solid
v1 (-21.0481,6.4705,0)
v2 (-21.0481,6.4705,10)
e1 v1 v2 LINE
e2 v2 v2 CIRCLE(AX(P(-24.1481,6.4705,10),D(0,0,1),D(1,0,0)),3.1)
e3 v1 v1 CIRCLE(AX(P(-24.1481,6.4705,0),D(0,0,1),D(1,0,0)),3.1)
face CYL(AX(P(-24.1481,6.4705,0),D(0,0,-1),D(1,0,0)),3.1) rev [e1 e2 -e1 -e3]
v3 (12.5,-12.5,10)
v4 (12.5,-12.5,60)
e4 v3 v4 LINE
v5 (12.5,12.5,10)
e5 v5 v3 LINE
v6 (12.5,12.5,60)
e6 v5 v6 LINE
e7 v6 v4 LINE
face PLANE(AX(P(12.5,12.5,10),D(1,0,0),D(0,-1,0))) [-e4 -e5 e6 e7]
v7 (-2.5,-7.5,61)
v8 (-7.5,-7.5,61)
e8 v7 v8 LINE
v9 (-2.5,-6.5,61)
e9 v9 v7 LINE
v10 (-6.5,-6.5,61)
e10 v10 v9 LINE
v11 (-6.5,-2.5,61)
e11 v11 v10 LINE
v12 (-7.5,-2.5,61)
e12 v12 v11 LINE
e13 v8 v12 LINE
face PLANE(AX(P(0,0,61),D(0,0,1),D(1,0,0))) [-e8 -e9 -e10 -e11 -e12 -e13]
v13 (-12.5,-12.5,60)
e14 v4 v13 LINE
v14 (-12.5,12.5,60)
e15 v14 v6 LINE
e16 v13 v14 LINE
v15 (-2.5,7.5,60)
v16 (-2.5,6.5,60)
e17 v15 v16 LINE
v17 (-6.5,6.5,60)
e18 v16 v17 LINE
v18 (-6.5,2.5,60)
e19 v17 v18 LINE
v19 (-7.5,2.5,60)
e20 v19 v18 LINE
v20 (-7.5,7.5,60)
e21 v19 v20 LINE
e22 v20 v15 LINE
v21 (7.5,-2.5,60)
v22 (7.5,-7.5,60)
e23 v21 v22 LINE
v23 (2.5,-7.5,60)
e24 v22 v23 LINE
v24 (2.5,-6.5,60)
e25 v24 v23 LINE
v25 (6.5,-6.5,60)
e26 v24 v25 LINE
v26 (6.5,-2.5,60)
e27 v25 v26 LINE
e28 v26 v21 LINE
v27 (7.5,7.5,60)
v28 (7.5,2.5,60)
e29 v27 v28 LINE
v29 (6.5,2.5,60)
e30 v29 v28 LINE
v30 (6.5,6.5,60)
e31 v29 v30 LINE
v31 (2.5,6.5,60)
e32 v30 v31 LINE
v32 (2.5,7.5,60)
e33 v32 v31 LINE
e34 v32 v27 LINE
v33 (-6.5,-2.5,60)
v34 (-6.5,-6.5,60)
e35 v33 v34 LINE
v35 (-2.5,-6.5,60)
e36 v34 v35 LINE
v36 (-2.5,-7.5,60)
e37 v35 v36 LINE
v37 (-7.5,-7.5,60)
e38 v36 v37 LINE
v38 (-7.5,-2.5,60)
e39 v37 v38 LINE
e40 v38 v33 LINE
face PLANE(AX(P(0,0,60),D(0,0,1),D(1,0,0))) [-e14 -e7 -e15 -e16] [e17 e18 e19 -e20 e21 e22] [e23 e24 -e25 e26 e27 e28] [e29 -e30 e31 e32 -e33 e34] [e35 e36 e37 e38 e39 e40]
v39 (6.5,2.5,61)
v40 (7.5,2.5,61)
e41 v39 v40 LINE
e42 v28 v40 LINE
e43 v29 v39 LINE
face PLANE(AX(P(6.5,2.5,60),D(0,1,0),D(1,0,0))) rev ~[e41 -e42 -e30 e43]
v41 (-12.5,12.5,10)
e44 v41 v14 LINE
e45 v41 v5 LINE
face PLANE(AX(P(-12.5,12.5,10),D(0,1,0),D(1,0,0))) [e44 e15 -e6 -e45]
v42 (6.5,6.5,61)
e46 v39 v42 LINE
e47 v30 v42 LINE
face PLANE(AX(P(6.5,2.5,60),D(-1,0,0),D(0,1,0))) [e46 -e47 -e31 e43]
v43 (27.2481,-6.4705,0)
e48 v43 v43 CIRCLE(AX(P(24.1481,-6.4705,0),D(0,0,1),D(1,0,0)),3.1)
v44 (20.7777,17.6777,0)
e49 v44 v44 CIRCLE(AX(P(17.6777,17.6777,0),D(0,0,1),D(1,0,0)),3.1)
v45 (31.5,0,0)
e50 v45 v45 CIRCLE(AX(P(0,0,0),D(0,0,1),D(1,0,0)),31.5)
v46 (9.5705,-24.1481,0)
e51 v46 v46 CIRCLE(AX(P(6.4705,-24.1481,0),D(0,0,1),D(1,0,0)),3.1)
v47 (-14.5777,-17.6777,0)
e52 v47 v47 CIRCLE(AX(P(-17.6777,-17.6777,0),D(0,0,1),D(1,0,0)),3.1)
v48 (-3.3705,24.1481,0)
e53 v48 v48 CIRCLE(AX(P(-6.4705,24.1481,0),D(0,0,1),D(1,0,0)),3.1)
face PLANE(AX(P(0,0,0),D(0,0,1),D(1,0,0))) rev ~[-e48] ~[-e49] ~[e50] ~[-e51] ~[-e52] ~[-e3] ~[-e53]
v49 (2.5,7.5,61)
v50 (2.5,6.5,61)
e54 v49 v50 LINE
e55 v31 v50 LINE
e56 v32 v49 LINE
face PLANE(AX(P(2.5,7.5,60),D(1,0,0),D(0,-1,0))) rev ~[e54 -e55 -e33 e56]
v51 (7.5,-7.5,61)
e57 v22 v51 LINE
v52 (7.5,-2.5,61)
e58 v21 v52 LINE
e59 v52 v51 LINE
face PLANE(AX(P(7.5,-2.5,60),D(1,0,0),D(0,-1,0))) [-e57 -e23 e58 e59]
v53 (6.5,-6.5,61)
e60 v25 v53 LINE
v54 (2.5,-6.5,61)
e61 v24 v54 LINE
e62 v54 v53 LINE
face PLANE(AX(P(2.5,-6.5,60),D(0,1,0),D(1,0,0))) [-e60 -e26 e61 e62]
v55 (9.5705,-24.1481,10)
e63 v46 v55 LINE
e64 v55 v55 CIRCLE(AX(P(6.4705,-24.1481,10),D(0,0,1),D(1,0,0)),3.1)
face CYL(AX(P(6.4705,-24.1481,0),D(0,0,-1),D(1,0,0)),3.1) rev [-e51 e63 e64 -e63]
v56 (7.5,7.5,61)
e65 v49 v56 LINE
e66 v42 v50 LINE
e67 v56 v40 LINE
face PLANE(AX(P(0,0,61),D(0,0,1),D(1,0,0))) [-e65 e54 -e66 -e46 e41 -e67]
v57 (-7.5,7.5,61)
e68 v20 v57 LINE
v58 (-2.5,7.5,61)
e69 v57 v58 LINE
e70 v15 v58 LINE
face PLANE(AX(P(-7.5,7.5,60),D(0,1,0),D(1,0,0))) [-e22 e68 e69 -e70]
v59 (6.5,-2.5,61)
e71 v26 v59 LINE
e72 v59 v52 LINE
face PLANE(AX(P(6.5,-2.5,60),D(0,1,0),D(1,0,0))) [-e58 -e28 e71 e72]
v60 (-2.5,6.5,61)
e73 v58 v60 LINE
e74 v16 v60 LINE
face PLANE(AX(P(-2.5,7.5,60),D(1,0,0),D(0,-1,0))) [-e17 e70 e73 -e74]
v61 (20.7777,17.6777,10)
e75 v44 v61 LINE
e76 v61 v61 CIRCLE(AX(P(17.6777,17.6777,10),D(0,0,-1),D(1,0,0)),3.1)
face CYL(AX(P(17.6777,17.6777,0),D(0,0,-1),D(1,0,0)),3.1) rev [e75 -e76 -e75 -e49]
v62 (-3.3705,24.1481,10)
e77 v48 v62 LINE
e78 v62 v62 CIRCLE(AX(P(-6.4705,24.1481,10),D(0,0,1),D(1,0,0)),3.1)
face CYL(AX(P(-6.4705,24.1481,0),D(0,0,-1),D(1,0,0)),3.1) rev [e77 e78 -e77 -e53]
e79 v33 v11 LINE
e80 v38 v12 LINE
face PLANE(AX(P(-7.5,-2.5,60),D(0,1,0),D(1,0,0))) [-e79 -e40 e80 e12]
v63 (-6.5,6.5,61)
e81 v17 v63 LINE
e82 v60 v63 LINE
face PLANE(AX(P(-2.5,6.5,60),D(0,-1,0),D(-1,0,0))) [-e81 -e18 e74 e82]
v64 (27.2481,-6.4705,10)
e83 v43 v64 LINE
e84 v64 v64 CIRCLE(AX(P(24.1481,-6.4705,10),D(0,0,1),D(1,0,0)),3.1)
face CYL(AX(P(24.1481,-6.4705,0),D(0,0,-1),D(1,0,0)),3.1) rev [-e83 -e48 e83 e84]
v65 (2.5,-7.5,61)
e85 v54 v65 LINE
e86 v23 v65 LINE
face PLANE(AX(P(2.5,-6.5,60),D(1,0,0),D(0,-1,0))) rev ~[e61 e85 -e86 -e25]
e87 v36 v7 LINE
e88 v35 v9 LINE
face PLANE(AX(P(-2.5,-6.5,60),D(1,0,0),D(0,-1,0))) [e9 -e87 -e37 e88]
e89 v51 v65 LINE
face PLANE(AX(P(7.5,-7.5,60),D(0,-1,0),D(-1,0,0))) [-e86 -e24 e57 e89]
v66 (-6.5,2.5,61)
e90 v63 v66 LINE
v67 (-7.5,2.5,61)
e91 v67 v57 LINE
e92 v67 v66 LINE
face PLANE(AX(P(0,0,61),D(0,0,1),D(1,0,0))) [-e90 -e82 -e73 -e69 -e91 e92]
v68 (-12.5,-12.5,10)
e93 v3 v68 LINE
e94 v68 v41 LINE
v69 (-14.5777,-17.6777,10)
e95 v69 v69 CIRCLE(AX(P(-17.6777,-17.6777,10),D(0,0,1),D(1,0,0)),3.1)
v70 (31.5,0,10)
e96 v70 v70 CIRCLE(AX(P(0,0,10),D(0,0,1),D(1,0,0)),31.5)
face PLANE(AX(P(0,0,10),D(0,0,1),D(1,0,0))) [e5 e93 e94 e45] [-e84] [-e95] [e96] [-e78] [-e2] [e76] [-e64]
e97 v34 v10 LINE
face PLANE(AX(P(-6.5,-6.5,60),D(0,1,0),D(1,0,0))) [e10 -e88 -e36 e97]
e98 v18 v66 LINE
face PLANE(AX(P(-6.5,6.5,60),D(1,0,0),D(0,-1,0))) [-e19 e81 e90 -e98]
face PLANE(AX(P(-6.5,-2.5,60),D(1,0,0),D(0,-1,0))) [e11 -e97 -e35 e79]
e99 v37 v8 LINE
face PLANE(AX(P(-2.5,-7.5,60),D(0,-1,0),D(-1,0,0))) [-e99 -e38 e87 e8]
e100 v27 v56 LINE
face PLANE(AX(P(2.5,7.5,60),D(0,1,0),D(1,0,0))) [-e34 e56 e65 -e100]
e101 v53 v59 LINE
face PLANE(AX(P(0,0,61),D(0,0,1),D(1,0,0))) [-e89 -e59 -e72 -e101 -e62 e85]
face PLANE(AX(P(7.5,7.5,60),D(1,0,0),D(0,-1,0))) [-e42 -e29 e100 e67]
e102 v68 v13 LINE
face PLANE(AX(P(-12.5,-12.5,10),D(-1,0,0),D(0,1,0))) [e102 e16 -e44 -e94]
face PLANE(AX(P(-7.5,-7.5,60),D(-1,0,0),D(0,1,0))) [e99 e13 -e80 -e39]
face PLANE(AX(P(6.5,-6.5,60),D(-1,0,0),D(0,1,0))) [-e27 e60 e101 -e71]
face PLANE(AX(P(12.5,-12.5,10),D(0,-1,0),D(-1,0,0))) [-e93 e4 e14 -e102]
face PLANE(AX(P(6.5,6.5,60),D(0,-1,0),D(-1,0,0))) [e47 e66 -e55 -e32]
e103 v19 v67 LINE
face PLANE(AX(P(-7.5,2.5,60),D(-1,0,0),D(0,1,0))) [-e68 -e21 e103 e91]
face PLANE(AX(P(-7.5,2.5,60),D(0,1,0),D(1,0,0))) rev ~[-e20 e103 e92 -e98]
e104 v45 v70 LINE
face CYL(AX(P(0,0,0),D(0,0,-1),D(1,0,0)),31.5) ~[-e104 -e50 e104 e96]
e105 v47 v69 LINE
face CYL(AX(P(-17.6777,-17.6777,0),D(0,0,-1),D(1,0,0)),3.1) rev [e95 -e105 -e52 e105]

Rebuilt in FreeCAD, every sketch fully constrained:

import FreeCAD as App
import Part
import Sketcher
Q = App.Units.Quantity

doc = App.newDocument("Part")
params = doc.addObject("Spreadsheet::Sheet", "Params")
for row, (alias, value) in enumerate([
    ("sketch1_diameter", "63 mm"),
    ("sketch1_diameter2", "6.2 mm"),
    ("pad1_length", "10 mm"),
    ("sketch2_width", "25 mm"),
    ("pad2_length", "50 mm"),
    ("sketch3_width", "5 mm"),
    ("sketch3_width2", "1 mm"),
    ("pad3_length", "1 mm"),
], start=1):
    params.set(f"A{row}", alias)
    params.set(f"B{row}", "=" + value)
    params.setAlias(f"B{row}", alias)

body = doc.addObject("PartDesign::Body", "Body")

# Sketch on XY plane
sketch1 = doc.addObject("Sketcher::SketchObject", "Sketch")
body.addObject(sketch1)
sketch1.AttachmentSupport = (doc.XY_Plane, [""])
sketch1.MapMode = "FlatFace"
sketch1.addGeometry([
    Part.Circle(App.Vector(0, 0, 0), App.Vector(0, 0, 1), 31.5),  # 0
    Part.Circle(App.Vector(-17.6777, -17.6777, 0), App.Vector(0, 0, 1), 3.1),  # 1
    Part.Circle(App.Vector(6.4705, -24.1481, 0), App.Vector(0, 0, 1), 3.1),  # 2
    Part.Circle(App.Vector(24.1481, -6.4705, 0), App.Vector(0, 0, 1), 3.1),  # 3
    Part.Circle(App.Vector(-24.1481, 6.4705, 0), App.Vector(0, 0, 1), 3.1),  # 4
    Part.Circle(App.Vector(-6.4705, 24.1481, 0), App.Vector(0, 0, 1), 3.1),  # 5
    Part.Circle(App.Vector(17.6777, 17.6777, 0), App.Vector(0, 0, 1), 3.1),  # 6
], False)
sketch1.addConstraint([
    Sketcher.Constraint("Coincident", 0, 3, -1, 1),
    Sketcher.Constraint("Equal", 1, 2),
    Sketcher.Constraint("Equal", 2, 3),
    Sketcher.Constraint("Equal", 3, 4),
    Sketcher.Constraint("Equal", 4, 5),
    Sketcher.Constraint("Equal", 5, 6),
    Sketcher.Constraint("Symmetric", 3, 3, 4, 3, -1, 1),
    Sketcher.Constraint("Symmetric", 2, 3, 5, 3, -1, 1),
    Sketcher.Constraint("Symmetric", 1, 3, 6, 3, -1, 1),
    Sketcher.Constraint("Diameter", 0, Q("63 mm")),
    Sketcher.Constraint("Diameter", 1, Q("6.2 mm")),
    Sketcher.Constraint("DistanceY", 2, 3, -1, 1, Q("24.148 mm")),
    Sketcher.Constraint("DistanceX", -1, 1, 3, 3, Q("24.148 mm")),
    Sketcher.Constraint("DistanceY", 3, 3, 4, 3, Q("12.941 mm")),
    Sketcher.Constraint("DistanceX", 5, 3, 2, 3, Q("12.941 mm")),
    Sketcher.Constraint("DistanceX", 1, 3, -1, 1, Q("17.6777 mm")),
    Sketcher.Constraint("DistanceY", 1, 3, -1, 1, Q("17.6777 mm")),
])
sketch1.setExpression("Constraints[9]", "Params.sketch1_diameter")
sketch1.setExpression("Constraints[10]", "Params.sketch1_diameter2")
pad1 = doc.addObject("PartDesign::Pad", "Pad")
body.addObject(pad1)
pad1.Profile = sketch1
pad1.setExpression("Length", "Params.pad1_length")

# Sketch on XY plane
sketch2 = doc.addObject("Sketcher::SketchObject", "Sketch001")
body.addObject(sketch2)
sketch2.AttachmentSupport = (doc.XY_Plane, [""])
sketch2.MapMode = "FlatFace"
sketch2.AttachmentOffset = App.Placement(App.Vector(0, 0, 10), App.Rotation())
sketch2.addGeometry([
    Part.LineSegment(App.Vector(-12.5, -12.5, 0), App.Vector(12.5, -12.5, 0)),
    Part.LineSegment(App.Vector(12.5, -12.5, 0), App.Vector(12.5, 12.5, 0)),
    Part.LineSegment(App.Vector(12.5, 12.5, 0), App.Vector(-12.5, 12.5, 0)),
    Part.LineSegment(App.Vector(-12.5, 12.5, 0), App.Vector(-12.5, -12.5, 0)),
], False)
sketch2.addConstraint([
    Sketcher.Constraint("Coincident", 0, 2, 1, 1),
    Sketcher.Constraint("Coincident", 1, 2, 2, 1),
    Sketcher.Constraint("Coincident", 2, 2, 3, 1),
    Sketcher.Constraint("Coincident", 3, 2, 0, 1),
    Sketcher.Constraint("Horizontal", 0),
    Sketcher.Constraint("Vertical", 1),
    Sketcher.Constraint("Horizontal", 2),
    Sketcher.Constraint("Vertical", 3),
    Sketcher.Constraint("Symmetric", 0, 2, 2, 2, -1, 1),
    Sketcher.Constraint("Equal", 2, 1),
    Sketcher.Constraint("DistanceX", 0, 1, 0, 2, Q("25 mm")),
])
sketch2.setExpression("Constraints[10]", "Params.sketch2_width")
pad2 = doc.addObject("PartDesign::Pad", "Pad001")
body.addObject(pad2)
pad2.Profile = sketch2
pad2.setExpression("Length", "Params.pad2_length")

# Sketch on XY plane
sketch3 = doc.addObject("Sketcher::SketchObject", "Sketch002")
body.addObject(sketch3)
sketch3.AttachmentSupport = (doc.XY_Plane, [""])
sketch3.MapMode = "FlatFace"
sketch3.AttachmentOffset = App.Placement(App.Vector(0, 0, 60), App.Rotation())
sketch3.addGeometry([
    Part.LineSegment(App.Vector(2.5, -7.5, 0), App.Vector(7.5, -7.5, 0)),  # 0
    Part.LineSegment(App.Vector(7.5, -7.5, 0), App.Vector(7.5, -2.5, 0)),  # 1
    Part.LineSegment(App.Vector(7.5, -2.5, 0), App.Vector(6.5, -2.5, 0)),  # 2
    Part.LineSegment(App.Vector(6.5, -2.5, 0), App.Vector(6.5, -6.5, 0)),  # 3
    Part.LineSegment(App.Vector(6.5, -6.5, 0), App.Vector(2.5, -6.5, 0)),  # 4
    Part.LineSegment(App.Vector(2.5, -6.5, 0), App.Vector(2.5, -7.5, 0)),  # 5
    Part.LineSegment(App.Vector(-7.5, -7.5, 0), App.Vector(-2.5, -7.5, 0)),  # 6
    Part.LineSegment(App.Vector(-2.5, -7.5, 0), App.Vector(-2.5, -6.5, 0)),  # 7
    Part.LineSegment(App.Vector(-2.5, -6.5, 0), App.Vector(-6.5, -6.5, 0)),  # 8
    Part.LineSegment(App.Vector(-6.5, -6.5, 0), App.Vector(-6.5, -2.5, 0)),  # 9
    Part.LineSegment(App.Vector(-6.5, -2.5, 0), App.Vector(-7.5, -2.5, 0)),  # 10
    Part.LineSegment(App.Vector(-7.5, -2.5, 0), App.Vector(-7.5, -7.5, 0)),  # 11
    Part.LineSegment(App.Vector(6.5, 2.5, 0), App.Vector(7.5, 2.5, 0)),  # 12
    Part.LineSegment(App.Vector(7.5, 2.5, 0), App.Vector(7.5, 7.5, 0)),  # 13
    Part.LineSegment(App.Vector(7.5, 7.5, 0), App.Vector(2.5, 7.5, 0)),  # 14
    Part.LineSegment(App.Vector(2.5, 7.5, 0), App.Vector(2.5, 6.5, 0)),  # 15
    Part.LineSegment(App.Vector(2.5, 6.5, 0), App.Vector(6.5, 6.5, 0)),  # 16
    Part.LineSegment(App.Vector(6.5, 6.5, 0), App.Vector(6.5, 2.5, 0)),  # 17
    Part.LineSegment(App.Vector(-7.5, 7.5, 0), App.Vector(-7.5, 2.5, 0)),  # 18
    Part.LineSegment(App.Vector(-7.5, 2.5, 0), App.Vector(-6.5, 2.5, 0)),  # 19
    Part.LineSegment(App.Vector(-6.5, 2.5, 0), App.Vector(-6.5, 6.5, 0)),  # 20
    Part.LineSegment(App.Vector(-6.5, 6.5, 0), App.Vector(-2.5, 6.5, 0)),  # 21
    Part.LineSegment(App.Vector(-2.5, 6.5, 0), App.Vector(-2.5, 7.5, 0)),  # 22
    Part.LineSegment(App.Vector(-2.5, 7.5, 0), App.Vector(-7.5, 7.5, 0)),  # 23
], False)
sketch3.addConstraint([
    Sketcher.Constraint("Coincident", 0, 2, 1, 1),
    Sketcher.Constraint("Coincident", 1, 2, 2, 1),
    Sketcher.Constraint("Coincident", 2, 2, 3, 1),
    Sketcher.Constraint("Coincident", 3, 2, 4, 1),
    Sketcher.Constraint("Coincident", 4, 2, 5, 1),
    Sketcher.Constraint("Coincident", 5, 2, 0, 1),
    Sketcher.Constraint("Coincident", 6, 2, 7, 1),
    Sketcher.Constraint("Coincident", 7, 2, 8, 1),
    Sketcher.Constraint("Coincident", 8, 2, 9, 1),
    Sketcher.Constraint("Coincident", 9, 2, 10, 1),
    Sketcher.Constraint("Coincident", 10, 2, 11, 1),
    Sketcher.Constraint("Coincident", 11, 2, 6, 1),
    Sketcher.Constraint("Coincident", 12, 2, 13, 1),
    Sketcher.Constraint("Coincident", 13, 2, 14, 1),
    Sketcher.Constraint("Coincident", 14, 2, 15, 1),
    Sketcher.Constraint("Coincident", 15, 2, 16, 1),
    Sketcher.Constraint("Coincident", 16, 2, 17, 1),
    Sketcher.Constraint("Coincident", 17, 2, 12, 1),
    Sketcher.Constraint("Coincident", 18, 2, 19, 1),
    Sketcher.Constraint("Coincident", 19, 2, 20, 1),
    Sketcher.Constraint("Coincident", 20, 2, 21, 1),
    Sketcher.Constraint("Coincident", 21, 2, 22, 1),
    Sketcher.Constraint("Coincident", 22, 2, 23, 1),
    Sketcher.Constraint("Coincident", 23, 2, 18, 1),
    Sketcher.Constraint("Horizontal", 0),
    Sketcher.Constraint("Vertical", 1),
    Sketcher.Constraint("Horizontal", 2),
    Sketcher.Constraint("Vertical", 3),
    Sketcher.Constraint("Horizontal", 4),
    Sketcher.Constraint("Vertical", 5),
    Sketcher.Constraint("Horizontal", 6),
    Sketcher.Constraint("Vertical", 7),
    Sketcher.Constraint("Horizontal", 8),
    Sketcher.Constraint("Vertical", 9),
    Sketcher.Constraint("Horizontal", 10),
    Sketcher.Constraint("Vertical", 11),
    Sketcher.Constraint("Horizontal", 12),
    Sketcher.Constraint("Vertical", 13),
    Sketcher.Constraint("Horizontal", 14),
    Sketcher.Constraint("Vertical", 15),
    Sketcher.Constraint("Horizontal", 16),
    Sketcher.Constraint("Vertical", 17),
    Sketcher.Constraint("Vertical", 18),
    Sketcher.Constraint("Horizontal", 19),
    Sketcher.Constraint("Vertical", 20),
    Sketcher.Constraint("Horizontal", 21),
    Sketcher.Constraint("Vertical", 22),
    Sketcher.Constraint("Horizontal", 23),
    Sketcher.Constraint("Symmetric", 10, 2, 12, 2, -1, 1),
    Sketcher.Constraint("Symmetric", 6, 2, 14, 2, -1, 1),
    Sketcher.Constraint("Symmetric", 8, 2, 16, 2, -1, 1),
    Sketcher.Constraint("Symmetric", 1, 2, 18, 2, -1, 1),
    Sketcher.Constraint("Symmetric", 3, 2, 20, 2, -1, 1),
    Sketcher.Constraint("Symmetric", 5, 2, 22, 2, -1, 1),
    Sketcher.Constraint("Symmetric", 5, 2, 6, 2, -2),
    Sketcher.Constraint("Symmetric", 3, 2, 8, 2, -2),
    Sketcher.Constraint("Symmetric", 1, 2, 10, 2, -2),
    Sketcher.Constraint("Equal", 23, 1),
    Sketcher.Constraint("Equal", 21, 3),
    Sketcher.Constraint("DistanceX", 0, 1, 0, 2, Q("5 mm")),
    Sketcher.Constraint("DistanceX", 2, 2, 2, 1, Q("1 mm")),
    Sketcher.Constraint("DistanceX", 6, 2, 5, 2, Q("5 mm")),
    Sketcher.Constraint("DistanceY", 1, 2, 12, 2, Q("5 mm")),
])
sketch3.setExpression("Constraints[59]", "Params.sketch3_width")
sketch3.setExpression("Constraints[60]", "Params.sketch3_width2")
pad3 = doc.addObject("PartDesign::Pad", "Pad002")
body.addObject(pad3)
pad3.Profile = sketch3
pad3.setExpression("Length", "Params.pad3_length")

doc.recompute()
